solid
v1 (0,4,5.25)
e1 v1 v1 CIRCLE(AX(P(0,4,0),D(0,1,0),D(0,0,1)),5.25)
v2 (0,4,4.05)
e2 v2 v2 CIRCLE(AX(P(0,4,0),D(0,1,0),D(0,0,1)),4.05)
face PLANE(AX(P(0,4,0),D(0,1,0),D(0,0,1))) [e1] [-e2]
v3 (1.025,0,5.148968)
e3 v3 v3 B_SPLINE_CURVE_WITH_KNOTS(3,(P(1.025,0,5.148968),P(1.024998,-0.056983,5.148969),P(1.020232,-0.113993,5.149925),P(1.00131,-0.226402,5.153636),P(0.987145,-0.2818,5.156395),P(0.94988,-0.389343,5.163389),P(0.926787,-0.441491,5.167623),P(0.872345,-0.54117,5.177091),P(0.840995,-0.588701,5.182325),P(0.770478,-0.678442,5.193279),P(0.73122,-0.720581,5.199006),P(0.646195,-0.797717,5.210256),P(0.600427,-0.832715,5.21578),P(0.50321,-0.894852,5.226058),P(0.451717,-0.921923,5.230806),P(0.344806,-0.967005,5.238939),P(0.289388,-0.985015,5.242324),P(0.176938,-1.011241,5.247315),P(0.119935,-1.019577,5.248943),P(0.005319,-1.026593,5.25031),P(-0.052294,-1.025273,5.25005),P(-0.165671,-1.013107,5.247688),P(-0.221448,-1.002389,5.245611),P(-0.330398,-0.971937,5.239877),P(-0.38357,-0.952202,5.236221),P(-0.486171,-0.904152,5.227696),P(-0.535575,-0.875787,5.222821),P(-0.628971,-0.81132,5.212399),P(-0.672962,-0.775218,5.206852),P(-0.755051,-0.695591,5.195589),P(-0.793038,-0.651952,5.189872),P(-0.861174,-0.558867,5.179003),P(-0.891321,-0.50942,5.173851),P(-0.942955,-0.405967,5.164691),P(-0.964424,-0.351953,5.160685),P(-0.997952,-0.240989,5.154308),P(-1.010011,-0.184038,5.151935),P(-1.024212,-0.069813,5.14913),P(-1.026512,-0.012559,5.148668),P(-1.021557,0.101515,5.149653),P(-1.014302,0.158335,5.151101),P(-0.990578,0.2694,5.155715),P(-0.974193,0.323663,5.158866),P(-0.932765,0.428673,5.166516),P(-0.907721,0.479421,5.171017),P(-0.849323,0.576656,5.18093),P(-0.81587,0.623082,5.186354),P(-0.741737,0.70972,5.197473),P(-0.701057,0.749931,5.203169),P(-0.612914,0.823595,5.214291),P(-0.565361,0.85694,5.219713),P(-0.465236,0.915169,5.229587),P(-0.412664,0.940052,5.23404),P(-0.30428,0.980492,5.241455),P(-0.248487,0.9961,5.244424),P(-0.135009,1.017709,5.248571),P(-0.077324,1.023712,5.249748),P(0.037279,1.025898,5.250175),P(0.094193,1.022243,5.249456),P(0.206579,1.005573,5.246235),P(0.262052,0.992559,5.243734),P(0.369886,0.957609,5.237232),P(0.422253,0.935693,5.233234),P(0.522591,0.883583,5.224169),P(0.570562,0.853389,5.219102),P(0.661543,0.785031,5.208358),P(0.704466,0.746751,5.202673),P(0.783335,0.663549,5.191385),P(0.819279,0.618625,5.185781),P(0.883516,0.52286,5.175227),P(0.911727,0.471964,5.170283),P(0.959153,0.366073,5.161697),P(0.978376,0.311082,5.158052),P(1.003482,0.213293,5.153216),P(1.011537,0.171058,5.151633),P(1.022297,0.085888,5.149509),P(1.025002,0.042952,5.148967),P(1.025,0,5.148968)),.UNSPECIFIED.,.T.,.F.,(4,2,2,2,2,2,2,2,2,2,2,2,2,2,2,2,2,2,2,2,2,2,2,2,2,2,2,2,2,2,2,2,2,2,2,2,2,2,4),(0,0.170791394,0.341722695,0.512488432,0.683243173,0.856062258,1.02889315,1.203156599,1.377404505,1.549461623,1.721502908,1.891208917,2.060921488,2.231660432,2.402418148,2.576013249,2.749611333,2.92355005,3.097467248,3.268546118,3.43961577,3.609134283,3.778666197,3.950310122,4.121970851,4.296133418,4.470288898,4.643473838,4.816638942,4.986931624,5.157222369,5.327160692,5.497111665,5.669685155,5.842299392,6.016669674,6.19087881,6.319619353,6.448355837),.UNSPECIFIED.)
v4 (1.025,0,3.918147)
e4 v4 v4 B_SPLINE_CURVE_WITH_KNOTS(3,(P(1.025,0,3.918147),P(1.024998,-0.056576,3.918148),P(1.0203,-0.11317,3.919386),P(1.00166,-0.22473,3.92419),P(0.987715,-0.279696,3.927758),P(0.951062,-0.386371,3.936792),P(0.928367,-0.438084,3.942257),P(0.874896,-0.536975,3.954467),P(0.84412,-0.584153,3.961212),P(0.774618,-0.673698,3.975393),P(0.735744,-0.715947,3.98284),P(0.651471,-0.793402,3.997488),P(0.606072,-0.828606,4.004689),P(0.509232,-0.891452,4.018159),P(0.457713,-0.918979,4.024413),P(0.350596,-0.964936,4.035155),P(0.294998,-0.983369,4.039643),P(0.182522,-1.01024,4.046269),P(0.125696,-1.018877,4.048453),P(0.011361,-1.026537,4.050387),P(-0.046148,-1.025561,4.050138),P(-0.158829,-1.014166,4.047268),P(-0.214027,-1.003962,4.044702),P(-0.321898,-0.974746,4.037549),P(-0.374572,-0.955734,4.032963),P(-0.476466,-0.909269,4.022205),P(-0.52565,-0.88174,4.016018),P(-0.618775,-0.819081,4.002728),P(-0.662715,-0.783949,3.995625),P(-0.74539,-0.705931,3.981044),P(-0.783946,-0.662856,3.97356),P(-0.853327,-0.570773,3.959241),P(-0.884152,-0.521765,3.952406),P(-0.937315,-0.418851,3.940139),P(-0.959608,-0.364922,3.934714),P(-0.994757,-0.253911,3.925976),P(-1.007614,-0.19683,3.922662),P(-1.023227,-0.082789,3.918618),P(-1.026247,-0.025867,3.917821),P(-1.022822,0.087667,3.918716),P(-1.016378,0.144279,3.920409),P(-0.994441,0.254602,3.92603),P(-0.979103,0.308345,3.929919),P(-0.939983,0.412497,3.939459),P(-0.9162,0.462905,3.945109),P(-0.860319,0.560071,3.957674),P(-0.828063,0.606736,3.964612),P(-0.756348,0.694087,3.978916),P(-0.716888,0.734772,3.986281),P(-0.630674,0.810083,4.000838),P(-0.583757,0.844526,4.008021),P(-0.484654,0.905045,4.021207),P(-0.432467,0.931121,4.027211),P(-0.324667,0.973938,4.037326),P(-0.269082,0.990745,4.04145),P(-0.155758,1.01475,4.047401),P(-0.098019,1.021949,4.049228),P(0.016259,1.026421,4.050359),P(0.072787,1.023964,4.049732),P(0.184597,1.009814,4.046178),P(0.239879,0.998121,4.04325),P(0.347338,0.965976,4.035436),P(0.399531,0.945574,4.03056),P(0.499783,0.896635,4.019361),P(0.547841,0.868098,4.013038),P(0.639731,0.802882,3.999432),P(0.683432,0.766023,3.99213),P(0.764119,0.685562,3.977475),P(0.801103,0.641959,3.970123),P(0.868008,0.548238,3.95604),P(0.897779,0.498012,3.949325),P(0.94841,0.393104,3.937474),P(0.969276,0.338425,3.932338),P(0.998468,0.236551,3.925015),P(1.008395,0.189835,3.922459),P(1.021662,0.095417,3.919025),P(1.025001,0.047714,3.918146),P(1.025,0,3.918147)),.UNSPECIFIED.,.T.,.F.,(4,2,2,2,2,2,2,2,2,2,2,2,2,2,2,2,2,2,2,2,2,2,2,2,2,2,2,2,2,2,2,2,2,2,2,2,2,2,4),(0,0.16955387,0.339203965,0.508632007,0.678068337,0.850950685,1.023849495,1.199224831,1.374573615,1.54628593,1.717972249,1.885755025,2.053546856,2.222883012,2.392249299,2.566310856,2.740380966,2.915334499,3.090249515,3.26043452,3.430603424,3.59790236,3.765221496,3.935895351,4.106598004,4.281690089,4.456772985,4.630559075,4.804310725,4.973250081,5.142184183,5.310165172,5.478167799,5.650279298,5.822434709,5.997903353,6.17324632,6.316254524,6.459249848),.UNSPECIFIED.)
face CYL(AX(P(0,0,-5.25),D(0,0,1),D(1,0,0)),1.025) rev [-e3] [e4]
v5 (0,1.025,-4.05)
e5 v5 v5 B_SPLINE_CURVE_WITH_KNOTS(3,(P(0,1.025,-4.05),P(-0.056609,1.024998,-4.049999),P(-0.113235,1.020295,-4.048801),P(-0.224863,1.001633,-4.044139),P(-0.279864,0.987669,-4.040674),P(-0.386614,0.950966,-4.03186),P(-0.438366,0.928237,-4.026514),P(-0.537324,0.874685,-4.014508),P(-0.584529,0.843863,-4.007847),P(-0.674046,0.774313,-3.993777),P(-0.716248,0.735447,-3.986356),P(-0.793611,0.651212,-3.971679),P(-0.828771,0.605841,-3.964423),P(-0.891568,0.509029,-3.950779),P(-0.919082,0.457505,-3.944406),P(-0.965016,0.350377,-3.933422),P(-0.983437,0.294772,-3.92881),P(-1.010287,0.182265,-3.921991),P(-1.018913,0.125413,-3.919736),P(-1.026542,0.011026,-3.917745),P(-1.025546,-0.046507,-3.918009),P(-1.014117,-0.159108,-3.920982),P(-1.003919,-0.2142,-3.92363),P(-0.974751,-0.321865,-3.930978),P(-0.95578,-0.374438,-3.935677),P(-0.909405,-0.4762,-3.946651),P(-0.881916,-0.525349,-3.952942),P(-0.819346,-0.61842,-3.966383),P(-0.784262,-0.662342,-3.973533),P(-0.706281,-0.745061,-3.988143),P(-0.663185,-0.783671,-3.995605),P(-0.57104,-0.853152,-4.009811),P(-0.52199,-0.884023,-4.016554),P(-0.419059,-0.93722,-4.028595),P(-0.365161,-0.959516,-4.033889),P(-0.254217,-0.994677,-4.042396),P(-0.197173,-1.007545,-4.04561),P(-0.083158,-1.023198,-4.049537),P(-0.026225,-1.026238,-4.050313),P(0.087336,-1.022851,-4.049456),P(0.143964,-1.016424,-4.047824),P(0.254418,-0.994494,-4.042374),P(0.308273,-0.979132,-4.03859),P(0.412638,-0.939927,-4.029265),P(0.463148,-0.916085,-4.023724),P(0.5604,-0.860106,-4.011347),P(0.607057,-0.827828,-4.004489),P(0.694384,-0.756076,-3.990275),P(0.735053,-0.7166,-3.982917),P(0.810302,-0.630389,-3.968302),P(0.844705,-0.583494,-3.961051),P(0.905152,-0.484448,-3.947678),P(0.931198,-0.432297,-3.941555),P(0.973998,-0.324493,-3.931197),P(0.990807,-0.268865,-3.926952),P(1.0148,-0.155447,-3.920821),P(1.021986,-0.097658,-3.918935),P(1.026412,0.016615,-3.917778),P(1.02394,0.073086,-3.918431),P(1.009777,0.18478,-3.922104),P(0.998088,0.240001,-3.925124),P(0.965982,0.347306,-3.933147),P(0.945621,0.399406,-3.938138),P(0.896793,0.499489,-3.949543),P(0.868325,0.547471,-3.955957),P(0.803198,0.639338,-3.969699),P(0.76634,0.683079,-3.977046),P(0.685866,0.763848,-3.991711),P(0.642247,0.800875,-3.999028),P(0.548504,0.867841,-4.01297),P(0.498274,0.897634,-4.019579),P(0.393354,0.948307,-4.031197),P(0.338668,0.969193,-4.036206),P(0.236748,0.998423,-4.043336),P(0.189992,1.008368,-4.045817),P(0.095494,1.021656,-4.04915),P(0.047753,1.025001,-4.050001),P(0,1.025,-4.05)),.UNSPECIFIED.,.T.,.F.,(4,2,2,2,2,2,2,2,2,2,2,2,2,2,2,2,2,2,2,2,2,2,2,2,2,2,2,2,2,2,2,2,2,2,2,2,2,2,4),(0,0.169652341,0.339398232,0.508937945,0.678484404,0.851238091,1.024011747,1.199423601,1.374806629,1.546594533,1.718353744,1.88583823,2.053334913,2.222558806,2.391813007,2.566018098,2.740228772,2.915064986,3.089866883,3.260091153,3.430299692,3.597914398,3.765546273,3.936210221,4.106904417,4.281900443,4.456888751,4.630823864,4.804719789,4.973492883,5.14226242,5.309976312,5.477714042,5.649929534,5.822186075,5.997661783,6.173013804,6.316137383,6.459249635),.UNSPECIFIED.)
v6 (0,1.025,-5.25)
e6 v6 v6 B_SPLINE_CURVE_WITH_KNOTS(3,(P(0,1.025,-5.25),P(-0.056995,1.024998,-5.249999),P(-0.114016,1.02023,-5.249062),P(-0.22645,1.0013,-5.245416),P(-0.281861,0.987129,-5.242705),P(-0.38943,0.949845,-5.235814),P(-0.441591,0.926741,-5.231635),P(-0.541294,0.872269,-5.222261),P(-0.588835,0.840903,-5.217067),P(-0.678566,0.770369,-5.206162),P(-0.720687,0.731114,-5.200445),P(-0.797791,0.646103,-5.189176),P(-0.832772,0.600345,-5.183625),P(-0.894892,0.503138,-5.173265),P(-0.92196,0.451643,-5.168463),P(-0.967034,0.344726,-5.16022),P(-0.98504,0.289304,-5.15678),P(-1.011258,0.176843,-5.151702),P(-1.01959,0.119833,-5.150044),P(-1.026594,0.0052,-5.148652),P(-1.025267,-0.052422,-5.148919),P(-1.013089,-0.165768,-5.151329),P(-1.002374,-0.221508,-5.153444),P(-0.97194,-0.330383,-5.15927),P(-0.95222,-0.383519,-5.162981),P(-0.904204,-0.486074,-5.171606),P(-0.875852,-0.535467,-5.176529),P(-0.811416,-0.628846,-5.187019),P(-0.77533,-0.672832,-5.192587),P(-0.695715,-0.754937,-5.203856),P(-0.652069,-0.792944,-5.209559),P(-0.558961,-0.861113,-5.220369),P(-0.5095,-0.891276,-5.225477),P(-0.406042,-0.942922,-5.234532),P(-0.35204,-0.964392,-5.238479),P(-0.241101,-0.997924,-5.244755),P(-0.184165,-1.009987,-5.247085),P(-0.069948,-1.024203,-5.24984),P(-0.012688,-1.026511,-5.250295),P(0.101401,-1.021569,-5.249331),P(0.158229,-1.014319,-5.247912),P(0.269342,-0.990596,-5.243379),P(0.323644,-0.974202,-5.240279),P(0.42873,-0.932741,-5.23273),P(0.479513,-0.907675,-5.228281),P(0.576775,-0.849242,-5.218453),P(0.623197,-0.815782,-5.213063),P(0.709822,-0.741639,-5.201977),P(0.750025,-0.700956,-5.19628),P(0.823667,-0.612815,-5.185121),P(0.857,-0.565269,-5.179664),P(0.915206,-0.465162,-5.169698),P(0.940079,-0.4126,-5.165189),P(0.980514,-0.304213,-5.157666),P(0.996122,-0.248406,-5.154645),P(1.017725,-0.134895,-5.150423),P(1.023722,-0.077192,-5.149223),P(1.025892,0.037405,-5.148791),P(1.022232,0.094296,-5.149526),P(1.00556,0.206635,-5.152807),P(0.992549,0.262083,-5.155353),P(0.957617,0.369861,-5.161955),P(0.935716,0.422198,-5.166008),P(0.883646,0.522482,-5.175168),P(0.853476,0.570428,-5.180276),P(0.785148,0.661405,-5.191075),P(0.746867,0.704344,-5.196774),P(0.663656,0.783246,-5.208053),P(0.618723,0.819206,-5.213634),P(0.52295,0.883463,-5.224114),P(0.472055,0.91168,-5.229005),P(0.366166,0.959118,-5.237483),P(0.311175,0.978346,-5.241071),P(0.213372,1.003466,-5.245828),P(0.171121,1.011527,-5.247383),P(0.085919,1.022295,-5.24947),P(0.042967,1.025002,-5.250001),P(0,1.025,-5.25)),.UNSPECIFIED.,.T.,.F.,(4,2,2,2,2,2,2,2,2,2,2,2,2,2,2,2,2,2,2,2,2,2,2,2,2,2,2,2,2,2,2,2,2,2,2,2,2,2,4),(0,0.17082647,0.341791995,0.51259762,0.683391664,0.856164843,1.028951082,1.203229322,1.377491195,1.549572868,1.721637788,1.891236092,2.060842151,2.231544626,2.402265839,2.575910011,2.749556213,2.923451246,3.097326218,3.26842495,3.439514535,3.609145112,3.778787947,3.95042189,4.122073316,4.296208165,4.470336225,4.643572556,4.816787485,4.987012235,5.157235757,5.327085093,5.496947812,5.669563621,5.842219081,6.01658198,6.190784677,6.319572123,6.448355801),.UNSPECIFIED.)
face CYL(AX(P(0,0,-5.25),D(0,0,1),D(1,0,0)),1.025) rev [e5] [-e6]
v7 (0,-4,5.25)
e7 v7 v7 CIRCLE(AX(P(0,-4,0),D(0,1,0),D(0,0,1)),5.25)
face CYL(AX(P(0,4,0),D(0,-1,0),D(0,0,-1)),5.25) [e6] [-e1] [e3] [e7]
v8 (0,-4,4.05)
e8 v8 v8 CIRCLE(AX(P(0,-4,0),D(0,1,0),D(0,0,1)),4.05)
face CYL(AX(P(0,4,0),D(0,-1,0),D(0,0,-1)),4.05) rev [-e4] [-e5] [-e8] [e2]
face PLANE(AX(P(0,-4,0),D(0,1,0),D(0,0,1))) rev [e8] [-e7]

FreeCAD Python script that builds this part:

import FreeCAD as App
import Part
import Sketcher

doc = App.newDocument("Part")
body = doc.addObject("PartDesign::Body", "Body")

sketch1 = body.newObject("Sketcher::SketchObject", "Sketch")
sketch1.AttachmentSupport = (doc.getObject("XZ_Plane"), [""])
sketch1.MapMode = "FlatFace"
sketch1.addGeometry([
    Part.Circle(App.Vector(0, 0, 0), App.Vector(0, 0, 1), 5.2),
    Part.Circle(App.Vector(0, 0, 0), App.Vector(0, 0, 1), 4),
], False)
sketch1.addConstraint([
    Sketcher.Constraint("Coincident", 0, 3, -1, 1),
    Sketcher.Constraint("Coincident", 1, 3, -1, 1),
    Sketcher.Constraint("Diameter", 0, 10.5),
    Sketcher.Constraint("Diameter", 1, 8.1),
])
pad1 = body.newObject("PartDesign::Pad", "Pad")
pad1.Profile = sketch1
pad1.Length = 8
pad1.Midplane = True

sketch2 = body.newObject("Sketcher::SketchObject", "Sketch001")
sketch2.AttachmentSupport = (doc.getObject("XY_Plane"), [""])
sketch2.MapMode = "FlatFace"
sketch2.addGeometry(Part.Circle(App.Vector(0, 0, 0), App.Vector(0, 0, 1), 1), False)
sketch2.addConstraint([
    Sketcher.Constraint("Coincident", 0, 3, -1, 1),
    Sketcher.Constraint("Diameter", 0, 2.05),
])
pocket1 = body.newObject("PartDesign::Pocket", "Pocket")
pocket1.Profile = sketch2
pocket1.Type = "ThroughAll"
pocket1.Midplane = True

doc.recompute()
